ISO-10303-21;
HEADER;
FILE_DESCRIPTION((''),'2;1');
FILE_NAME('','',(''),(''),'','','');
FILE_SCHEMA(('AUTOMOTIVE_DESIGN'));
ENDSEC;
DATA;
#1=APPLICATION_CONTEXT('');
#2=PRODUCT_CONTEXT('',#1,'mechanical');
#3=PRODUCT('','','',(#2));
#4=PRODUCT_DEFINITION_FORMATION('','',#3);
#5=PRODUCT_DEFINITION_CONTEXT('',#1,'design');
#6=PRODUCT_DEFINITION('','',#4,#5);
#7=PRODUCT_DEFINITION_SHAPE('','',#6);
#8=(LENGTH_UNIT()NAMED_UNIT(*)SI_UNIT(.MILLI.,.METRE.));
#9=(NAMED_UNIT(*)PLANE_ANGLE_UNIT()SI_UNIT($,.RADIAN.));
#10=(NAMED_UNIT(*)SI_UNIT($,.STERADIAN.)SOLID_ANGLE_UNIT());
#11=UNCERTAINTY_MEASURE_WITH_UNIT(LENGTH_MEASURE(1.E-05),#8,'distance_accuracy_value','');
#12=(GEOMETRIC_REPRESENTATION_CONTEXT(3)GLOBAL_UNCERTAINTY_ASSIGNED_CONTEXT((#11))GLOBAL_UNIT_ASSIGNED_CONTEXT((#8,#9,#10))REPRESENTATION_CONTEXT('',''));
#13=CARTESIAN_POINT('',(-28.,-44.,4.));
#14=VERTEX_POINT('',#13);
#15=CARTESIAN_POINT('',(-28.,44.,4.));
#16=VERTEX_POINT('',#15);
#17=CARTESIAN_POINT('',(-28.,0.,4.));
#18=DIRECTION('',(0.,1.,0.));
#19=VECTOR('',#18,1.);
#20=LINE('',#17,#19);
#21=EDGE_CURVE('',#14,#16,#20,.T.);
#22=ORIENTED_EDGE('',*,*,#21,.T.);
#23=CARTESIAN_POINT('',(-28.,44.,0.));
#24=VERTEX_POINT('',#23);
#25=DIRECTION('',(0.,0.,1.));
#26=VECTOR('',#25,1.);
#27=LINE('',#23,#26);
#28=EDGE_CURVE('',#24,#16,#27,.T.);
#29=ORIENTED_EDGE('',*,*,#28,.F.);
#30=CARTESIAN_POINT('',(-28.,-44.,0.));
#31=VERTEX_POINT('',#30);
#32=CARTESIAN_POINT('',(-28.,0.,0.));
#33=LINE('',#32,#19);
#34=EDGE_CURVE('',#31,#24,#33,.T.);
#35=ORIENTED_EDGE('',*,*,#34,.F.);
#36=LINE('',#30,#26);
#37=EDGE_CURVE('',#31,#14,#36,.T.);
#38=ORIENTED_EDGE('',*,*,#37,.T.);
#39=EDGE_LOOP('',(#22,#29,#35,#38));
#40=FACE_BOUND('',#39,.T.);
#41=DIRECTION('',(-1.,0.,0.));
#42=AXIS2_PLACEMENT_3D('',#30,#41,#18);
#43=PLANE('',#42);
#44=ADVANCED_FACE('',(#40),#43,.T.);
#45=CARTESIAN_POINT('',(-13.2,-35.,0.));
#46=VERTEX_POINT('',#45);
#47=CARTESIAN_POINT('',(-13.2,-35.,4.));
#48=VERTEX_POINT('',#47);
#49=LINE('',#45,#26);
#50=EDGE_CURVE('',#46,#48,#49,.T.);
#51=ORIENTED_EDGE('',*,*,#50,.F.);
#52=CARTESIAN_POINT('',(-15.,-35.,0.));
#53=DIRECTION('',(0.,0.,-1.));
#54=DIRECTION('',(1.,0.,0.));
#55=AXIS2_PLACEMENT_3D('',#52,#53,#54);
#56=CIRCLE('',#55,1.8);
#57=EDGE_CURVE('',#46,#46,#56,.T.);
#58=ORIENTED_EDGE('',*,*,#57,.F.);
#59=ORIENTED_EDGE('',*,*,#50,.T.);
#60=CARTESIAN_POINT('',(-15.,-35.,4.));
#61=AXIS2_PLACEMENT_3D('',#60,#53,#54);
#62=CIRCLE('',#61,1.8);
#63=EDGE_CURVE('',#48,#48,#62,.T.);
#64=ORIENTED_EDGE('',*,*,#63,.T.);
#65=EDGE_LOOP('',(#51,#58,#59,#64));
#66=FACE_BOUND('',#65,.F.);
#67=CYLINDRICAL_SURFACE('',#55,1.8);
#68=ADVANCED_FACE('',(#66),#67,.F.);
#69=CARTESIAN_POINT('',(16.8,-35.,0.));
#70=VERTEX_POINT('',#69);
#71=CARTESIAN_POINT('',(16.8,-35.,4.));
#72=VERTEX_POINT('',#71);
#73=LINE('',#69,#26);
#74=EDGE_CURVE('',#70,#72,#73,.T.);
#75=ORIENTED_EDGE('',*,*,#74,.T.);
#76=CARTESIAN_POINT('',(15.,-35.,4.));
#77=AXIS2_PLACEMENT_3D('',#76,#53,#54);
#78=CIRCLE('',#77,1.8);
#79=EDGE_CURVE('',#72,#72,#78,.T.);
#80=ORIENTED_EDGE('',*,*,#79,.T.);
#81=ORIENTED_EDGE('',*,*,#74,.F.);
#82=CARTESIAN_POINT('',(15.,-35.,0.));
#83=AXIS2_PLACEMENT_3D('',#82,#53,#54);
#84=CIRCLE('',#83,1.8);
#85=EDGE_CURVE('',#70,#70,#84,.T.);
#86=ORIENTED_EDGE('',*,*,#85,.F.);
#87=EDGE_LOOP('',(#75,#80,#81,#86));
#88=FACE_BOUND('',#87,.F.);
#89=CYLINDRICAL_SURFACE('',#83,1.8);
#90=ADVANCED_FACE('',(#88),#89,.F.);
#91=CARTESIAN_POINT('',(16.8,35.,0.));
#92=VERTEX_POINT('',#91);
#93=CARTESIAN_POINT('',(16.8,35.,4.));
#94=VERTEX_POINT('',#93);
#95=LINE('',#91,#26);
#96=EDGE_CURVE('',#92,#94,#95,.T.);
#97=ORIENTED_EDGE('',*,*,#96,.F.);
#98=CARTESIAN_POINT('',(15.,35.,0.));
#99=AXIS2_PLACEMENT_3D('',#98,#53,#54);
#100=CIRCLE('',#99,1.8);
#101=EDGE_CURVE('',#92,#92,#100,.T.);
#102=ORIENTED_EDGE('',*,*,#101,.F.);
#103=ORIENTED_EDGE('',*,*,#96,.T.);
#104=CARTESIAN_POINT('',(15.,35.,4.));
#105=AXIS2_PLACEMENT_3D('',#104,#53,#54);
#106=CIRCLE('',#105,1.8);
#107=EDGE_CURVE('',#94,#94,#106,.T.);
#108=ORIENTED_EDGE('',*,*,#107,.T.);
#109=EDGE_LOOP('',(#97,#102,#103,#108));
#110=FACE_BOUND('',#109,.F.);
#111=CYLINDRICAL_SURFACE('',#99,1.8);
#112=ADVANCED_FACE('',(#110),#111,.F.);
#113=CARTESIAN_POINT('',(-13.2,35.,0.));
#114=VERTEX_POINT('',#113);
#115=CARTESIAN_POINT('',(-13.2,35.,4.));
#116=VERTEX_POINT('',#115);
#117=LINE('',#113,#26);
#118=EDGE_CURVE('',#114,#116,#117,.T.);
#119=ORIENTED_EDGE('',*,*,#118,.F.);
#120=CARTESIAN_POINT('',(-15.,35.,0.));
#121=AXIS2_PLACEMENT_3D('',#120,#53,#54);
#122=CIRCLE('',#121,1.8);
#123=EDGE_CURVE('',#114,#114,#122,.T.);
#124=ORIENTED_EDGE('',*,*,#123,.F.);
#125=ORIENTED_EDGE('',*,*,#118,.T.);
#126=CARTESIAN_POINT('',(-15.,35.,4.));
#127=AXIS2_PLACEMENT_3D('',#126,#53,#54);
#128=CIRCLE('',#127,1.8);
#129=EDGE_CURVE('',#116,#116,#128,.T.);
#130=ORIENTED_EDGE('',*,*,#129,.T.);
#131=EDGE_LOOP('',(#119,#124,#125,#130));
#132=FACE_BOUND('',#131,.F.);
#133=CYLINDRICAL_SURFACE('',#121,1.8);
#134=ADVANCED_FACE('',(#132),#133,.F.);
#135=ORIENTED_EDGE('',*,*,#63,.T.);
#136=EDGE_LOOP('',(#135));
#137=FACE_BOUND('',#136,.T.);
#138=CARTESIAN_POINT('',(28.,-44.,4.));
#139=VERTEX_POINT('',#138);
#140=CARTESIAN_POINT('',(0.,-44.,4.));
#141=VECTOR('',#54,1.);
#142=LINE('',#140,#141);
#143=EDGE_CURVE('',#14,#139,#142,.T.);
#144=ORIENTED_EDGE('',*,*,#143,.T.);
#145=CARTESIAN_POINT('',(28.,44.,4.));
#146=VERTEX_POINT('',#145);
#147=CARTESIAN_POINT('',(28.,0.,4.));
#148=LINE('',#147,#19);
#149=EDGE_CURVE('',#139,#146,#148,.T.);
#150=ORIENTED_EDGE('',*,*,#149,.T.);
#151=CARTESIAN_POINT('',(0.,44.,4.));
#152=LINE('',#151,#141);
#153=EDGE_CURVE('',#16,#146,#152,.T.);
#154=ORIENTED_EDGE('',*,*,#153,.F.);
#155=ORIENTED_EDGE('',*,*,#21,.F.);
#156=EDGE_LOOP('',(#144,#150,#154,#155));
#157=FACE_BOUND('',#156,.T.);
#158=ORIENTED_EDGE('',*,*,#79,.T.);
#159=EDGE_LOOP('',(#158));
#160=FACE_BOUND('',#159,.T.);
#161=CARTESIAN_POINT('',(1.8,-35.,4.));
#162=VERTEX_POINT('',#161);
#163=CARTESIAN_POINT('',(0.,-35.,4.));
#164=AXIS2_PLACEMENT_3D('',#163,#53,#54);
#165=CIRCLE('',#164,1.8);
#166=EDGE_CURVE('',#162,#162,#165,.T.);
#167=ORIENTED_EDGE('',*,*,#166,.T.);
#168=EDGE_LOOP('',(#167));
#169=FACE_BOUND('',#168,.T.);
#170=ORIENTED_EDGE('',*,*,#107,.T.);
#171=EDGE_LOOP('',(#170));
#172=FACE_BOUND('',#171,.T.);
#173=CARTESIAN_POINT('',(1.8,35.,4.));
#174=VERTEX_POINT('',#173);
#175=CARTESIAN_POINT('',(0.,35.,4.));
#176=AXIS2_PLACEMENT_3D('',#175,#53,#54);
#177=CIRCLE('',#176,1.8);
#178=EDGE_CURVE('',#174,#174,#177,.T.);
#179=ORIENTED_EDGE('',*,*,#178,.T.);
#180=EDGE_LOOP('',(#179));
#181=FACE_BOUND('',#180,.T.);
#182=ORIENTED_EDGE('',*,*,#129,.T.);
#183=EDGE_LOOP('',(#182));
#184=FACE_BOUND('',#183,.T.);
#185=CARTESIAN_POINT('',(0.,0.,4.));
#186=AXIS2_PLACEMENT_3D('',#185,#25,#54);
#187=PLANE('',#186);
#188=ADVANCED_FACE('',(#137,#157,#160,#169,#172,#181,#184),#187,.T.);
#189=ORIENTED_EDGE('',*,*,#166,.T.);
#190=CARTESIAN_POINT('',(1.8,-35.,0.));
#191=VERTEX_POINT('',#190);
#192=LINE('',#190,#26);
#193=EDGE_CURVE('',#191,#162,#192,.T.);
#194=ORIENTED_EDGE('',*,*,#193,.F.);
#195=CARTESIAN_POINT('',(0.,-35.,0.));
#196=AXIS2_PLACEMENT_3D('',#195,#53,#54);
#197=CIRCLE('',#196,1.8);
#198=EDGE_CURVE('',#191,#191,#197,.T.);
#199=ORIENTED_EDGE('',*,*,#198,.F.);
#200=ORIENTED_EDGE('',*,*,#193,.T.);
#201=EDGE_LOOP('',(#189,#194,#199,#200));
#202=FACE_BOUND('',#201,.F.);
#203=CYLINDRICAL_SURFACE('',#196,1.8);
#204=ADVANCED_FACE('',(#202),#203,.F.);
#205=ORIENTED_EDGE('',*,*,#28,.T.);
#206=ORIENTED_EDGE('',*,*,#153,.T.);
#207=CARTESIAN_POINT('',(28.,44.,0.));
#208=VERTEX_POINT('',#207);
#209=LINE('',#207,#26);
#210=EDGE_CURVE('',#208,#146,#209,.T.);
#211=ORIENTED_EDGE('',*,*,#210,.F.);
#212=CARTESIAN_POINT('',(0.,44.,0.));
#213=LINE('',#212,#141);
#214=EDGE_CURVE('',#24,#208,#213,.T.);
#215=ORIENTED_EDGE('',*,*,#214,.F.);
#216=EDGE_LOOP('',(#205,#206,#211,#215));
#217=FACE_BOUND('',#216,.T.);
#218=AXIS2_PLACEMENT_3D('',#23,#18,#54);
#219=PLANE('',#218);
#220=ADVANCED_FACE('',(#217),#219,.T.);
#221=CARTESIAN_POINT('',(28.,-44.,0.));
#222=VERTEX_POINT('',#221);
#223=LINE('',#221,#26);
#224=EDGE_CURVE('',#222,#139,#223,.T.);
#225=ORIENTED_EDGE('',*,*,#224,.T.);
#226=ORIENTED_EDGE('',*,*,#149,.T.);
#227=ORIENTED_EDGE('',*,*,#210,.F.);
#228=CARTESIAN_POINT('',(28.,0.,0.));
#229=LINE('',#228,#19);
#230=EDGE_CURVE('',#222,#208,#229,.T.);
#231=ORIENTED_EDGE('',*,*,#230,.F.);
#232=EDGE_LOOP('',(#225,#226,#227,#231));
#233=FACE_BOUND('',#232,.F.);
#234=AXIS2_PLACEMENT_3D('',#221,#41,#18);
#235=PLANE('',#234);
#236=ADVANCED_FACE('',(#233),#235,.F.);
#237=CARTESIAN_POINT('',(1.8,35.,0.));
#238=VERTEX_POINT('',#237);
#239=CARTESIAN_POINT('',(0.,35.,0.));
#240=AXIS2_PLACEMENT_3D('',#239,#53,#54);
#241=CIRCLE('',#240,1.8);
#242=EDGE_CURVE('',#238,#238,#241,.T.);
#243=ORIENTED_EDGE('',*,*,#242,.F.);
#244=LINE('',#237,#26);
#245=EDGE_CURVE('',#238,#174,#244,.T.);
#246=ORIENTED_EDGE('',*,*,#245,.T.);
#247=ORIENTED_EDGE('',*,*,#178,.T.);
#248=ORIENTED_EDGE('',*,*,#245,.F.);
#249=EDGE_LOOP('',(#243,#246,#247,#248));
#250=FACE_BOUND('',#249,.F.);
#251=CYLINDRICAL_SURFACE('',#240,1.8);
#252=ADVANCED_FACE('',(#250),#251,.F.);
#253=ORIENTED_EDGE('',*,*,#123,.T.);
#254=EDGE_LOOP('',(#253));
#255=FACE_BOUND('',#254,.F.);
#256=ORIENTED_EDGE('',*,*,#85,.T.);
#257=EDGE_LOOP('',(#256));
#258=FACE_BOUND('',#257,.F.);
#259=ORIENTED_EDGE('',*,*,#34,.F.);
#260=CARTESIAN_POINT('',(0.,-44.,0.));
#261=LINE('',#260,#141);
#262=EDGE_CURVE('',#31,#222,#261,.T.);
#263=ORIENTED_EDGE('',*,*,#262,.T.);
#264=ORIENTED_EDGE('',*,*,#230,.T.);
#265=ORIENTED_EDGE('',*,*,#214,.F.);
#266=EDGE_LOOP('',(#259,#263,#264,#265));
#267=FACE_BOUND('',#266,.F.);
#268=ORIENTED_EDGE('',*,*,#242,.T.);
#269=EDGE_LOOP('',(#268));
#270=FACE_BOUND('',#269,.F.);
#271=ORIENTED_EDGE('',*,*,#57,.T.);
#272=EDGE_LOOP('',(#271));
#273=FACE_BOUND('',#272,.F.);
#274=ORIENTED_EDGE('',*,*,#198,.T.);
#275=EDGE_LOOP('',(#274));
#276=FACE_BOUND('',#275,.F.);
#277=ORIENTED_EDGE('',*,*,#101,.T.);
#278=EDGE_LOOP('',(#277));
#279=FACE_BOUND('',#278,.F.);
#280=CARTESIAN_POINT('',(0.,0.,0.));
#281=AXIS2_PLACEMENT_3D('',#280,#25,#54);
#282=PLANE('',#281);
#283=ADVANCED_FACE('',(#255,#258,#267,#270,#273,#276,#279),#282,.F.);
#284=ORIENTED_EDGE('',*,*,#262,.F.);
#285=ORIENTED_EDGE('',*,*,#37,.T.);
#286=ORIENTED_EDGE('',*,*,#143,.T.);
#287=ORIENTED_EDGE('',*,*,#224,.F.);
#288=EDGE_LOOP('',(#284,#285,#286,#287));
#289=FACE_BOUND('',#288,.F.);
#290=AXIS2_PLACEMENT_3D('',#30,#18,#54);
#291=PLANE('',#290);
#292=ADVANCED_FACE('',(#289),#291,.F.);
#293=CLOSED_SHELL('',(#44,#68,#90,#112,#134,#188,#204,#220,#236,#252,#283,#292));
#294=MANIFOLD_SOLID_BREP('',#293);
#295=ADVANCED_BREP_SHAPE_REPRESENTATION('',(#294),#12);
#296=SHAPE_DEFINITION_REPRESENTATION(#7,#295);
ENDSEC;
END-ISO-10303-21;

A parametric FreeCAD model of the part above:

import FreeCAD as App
import Part
import Sketcher

V = App.Vector


def add_polygon(sketch, points):
    """Adds a closed chain of lines whose ends are joined by coincident constraints."""
    first, n = sketch.GeometryCount, len(points)
    for a, b in zip(points, points[1:] + points[:1]):
        sketch.addGeometry(Part.LineSegment(App.Vector(*a, 0), App.Vector(*b, 0)), False)
    for i in range(n):
        sketch.addConstraint(Sketcher.Constraint("Coincident", first + i, 2, first + (i + 1) % n, 1))

doc = App.newDocument("Part")
body = doc.addObject("PartDesign::Body", "Body")

# Sketch on XY plane
sketch1 = body.newObject("Sketcher::SketchObject", "Sketch")
sketch1.AttachmentSupport = (doc.getObject("XY_Plane"), [""])
sketch1.MapMode = "FlatFace"
add_polygon(sketch1, [(-28, 44), (-28, -44), (28, -44), (28, 44)])  # lines 0-3
sketch1.addConstraint([
    Sketcher.Constraint("Vertical", 0),
    Sketcher.Constraint("Horizontal", 1),
    Sketcher.Constraint("Vertical", 2),
    Sketcher.Constraint("Horizontal", 3),
    Sketcher.Constraint("Symmetric", 0, 2, 2, 2, -1, 1),
    Sketcher.Constraint("DistanceX", 1, 1, 1, 2, 56.0),
    Sketcher.Constraint("DistanceY", 0, 2, 0, 1, 88.0),
])
pad1 = body.newObject("PartDesign::Pad", "Pad")
pad1.Profile = sketch1
pad1.Length = 4

# Sketch on XY plane
sketch2 = body.newObject("Sketcher::SketchObject", "Sketch001")
sketch2.AttachmentSupport = (doc.getObject("XY_Plane"), [""])
sketch2.MapMode = "FlatFace"
sketch2.addGeometry([
    Part.Circle(V(0, 35, 0), V(0, 0, 1), 1.8),  # 0
    Part.Circle(V(15, 35, 0), V(0, 0, 1), 1.8),  # 1
    Part.Circle(V(-15, 35, 0), V(0, 0, 1), 1.8),  # 2
    Part.Circle(V(15, -35, 0), V(0, 0, 1), 1.8),  # 3
    Part.Circle(V(0, -35, 0), V(0, 0, 1), 1.8),  # 4
    Part.Circle(V(-15, -35, 0), V(0, 0, 1), 1.8),  # 5
], False)
sketch2.addConstraint([
    Sketcher.Constraint("Equal", 0, 1),
    Sketcher.Constraint("Equal", 1, 2),
    Sketcher.Constraint("Equal", 2, 3),
    Sketcher.Constraint("Equal", 3, 4),
    Sketcher.Constraint("Equal", 4, 5),
    Sketcher.Constraint("Symmetric", 2, 3, 3, 3, -1, 1),
    Sketcher.Constraint("Symmetric", 0, 3, 4, 3, -1, 1),
    Sketcher.Constraint("Symmetric", 1, 3, 5, 3, -1, 1),
    Sketcher.Constraint("Symmetric", 1, 3, 2, 3, -2),
    Sketcher.Constraint("PointOnObject", 0, 3, -2),
    Sketcher.Constraint("Horizontal", 0, 3, 1, 3),
    Sketcher.Constraint("Diameter", 0, 3.6),
    Sketcher.Constraint("DistanceY", -1, 1, 0, 3, 35.0),
    Sketcher.Constraint("DistanceX", -1, 1, 1, 3, 15.0),
])
pocket1 = body.newObject("PartDesign::Pocket", "Pocket")
pocket1.Profile = sketch2
pocket1.Length = 5
pocket1.Reversed = True

doc.recompute()
